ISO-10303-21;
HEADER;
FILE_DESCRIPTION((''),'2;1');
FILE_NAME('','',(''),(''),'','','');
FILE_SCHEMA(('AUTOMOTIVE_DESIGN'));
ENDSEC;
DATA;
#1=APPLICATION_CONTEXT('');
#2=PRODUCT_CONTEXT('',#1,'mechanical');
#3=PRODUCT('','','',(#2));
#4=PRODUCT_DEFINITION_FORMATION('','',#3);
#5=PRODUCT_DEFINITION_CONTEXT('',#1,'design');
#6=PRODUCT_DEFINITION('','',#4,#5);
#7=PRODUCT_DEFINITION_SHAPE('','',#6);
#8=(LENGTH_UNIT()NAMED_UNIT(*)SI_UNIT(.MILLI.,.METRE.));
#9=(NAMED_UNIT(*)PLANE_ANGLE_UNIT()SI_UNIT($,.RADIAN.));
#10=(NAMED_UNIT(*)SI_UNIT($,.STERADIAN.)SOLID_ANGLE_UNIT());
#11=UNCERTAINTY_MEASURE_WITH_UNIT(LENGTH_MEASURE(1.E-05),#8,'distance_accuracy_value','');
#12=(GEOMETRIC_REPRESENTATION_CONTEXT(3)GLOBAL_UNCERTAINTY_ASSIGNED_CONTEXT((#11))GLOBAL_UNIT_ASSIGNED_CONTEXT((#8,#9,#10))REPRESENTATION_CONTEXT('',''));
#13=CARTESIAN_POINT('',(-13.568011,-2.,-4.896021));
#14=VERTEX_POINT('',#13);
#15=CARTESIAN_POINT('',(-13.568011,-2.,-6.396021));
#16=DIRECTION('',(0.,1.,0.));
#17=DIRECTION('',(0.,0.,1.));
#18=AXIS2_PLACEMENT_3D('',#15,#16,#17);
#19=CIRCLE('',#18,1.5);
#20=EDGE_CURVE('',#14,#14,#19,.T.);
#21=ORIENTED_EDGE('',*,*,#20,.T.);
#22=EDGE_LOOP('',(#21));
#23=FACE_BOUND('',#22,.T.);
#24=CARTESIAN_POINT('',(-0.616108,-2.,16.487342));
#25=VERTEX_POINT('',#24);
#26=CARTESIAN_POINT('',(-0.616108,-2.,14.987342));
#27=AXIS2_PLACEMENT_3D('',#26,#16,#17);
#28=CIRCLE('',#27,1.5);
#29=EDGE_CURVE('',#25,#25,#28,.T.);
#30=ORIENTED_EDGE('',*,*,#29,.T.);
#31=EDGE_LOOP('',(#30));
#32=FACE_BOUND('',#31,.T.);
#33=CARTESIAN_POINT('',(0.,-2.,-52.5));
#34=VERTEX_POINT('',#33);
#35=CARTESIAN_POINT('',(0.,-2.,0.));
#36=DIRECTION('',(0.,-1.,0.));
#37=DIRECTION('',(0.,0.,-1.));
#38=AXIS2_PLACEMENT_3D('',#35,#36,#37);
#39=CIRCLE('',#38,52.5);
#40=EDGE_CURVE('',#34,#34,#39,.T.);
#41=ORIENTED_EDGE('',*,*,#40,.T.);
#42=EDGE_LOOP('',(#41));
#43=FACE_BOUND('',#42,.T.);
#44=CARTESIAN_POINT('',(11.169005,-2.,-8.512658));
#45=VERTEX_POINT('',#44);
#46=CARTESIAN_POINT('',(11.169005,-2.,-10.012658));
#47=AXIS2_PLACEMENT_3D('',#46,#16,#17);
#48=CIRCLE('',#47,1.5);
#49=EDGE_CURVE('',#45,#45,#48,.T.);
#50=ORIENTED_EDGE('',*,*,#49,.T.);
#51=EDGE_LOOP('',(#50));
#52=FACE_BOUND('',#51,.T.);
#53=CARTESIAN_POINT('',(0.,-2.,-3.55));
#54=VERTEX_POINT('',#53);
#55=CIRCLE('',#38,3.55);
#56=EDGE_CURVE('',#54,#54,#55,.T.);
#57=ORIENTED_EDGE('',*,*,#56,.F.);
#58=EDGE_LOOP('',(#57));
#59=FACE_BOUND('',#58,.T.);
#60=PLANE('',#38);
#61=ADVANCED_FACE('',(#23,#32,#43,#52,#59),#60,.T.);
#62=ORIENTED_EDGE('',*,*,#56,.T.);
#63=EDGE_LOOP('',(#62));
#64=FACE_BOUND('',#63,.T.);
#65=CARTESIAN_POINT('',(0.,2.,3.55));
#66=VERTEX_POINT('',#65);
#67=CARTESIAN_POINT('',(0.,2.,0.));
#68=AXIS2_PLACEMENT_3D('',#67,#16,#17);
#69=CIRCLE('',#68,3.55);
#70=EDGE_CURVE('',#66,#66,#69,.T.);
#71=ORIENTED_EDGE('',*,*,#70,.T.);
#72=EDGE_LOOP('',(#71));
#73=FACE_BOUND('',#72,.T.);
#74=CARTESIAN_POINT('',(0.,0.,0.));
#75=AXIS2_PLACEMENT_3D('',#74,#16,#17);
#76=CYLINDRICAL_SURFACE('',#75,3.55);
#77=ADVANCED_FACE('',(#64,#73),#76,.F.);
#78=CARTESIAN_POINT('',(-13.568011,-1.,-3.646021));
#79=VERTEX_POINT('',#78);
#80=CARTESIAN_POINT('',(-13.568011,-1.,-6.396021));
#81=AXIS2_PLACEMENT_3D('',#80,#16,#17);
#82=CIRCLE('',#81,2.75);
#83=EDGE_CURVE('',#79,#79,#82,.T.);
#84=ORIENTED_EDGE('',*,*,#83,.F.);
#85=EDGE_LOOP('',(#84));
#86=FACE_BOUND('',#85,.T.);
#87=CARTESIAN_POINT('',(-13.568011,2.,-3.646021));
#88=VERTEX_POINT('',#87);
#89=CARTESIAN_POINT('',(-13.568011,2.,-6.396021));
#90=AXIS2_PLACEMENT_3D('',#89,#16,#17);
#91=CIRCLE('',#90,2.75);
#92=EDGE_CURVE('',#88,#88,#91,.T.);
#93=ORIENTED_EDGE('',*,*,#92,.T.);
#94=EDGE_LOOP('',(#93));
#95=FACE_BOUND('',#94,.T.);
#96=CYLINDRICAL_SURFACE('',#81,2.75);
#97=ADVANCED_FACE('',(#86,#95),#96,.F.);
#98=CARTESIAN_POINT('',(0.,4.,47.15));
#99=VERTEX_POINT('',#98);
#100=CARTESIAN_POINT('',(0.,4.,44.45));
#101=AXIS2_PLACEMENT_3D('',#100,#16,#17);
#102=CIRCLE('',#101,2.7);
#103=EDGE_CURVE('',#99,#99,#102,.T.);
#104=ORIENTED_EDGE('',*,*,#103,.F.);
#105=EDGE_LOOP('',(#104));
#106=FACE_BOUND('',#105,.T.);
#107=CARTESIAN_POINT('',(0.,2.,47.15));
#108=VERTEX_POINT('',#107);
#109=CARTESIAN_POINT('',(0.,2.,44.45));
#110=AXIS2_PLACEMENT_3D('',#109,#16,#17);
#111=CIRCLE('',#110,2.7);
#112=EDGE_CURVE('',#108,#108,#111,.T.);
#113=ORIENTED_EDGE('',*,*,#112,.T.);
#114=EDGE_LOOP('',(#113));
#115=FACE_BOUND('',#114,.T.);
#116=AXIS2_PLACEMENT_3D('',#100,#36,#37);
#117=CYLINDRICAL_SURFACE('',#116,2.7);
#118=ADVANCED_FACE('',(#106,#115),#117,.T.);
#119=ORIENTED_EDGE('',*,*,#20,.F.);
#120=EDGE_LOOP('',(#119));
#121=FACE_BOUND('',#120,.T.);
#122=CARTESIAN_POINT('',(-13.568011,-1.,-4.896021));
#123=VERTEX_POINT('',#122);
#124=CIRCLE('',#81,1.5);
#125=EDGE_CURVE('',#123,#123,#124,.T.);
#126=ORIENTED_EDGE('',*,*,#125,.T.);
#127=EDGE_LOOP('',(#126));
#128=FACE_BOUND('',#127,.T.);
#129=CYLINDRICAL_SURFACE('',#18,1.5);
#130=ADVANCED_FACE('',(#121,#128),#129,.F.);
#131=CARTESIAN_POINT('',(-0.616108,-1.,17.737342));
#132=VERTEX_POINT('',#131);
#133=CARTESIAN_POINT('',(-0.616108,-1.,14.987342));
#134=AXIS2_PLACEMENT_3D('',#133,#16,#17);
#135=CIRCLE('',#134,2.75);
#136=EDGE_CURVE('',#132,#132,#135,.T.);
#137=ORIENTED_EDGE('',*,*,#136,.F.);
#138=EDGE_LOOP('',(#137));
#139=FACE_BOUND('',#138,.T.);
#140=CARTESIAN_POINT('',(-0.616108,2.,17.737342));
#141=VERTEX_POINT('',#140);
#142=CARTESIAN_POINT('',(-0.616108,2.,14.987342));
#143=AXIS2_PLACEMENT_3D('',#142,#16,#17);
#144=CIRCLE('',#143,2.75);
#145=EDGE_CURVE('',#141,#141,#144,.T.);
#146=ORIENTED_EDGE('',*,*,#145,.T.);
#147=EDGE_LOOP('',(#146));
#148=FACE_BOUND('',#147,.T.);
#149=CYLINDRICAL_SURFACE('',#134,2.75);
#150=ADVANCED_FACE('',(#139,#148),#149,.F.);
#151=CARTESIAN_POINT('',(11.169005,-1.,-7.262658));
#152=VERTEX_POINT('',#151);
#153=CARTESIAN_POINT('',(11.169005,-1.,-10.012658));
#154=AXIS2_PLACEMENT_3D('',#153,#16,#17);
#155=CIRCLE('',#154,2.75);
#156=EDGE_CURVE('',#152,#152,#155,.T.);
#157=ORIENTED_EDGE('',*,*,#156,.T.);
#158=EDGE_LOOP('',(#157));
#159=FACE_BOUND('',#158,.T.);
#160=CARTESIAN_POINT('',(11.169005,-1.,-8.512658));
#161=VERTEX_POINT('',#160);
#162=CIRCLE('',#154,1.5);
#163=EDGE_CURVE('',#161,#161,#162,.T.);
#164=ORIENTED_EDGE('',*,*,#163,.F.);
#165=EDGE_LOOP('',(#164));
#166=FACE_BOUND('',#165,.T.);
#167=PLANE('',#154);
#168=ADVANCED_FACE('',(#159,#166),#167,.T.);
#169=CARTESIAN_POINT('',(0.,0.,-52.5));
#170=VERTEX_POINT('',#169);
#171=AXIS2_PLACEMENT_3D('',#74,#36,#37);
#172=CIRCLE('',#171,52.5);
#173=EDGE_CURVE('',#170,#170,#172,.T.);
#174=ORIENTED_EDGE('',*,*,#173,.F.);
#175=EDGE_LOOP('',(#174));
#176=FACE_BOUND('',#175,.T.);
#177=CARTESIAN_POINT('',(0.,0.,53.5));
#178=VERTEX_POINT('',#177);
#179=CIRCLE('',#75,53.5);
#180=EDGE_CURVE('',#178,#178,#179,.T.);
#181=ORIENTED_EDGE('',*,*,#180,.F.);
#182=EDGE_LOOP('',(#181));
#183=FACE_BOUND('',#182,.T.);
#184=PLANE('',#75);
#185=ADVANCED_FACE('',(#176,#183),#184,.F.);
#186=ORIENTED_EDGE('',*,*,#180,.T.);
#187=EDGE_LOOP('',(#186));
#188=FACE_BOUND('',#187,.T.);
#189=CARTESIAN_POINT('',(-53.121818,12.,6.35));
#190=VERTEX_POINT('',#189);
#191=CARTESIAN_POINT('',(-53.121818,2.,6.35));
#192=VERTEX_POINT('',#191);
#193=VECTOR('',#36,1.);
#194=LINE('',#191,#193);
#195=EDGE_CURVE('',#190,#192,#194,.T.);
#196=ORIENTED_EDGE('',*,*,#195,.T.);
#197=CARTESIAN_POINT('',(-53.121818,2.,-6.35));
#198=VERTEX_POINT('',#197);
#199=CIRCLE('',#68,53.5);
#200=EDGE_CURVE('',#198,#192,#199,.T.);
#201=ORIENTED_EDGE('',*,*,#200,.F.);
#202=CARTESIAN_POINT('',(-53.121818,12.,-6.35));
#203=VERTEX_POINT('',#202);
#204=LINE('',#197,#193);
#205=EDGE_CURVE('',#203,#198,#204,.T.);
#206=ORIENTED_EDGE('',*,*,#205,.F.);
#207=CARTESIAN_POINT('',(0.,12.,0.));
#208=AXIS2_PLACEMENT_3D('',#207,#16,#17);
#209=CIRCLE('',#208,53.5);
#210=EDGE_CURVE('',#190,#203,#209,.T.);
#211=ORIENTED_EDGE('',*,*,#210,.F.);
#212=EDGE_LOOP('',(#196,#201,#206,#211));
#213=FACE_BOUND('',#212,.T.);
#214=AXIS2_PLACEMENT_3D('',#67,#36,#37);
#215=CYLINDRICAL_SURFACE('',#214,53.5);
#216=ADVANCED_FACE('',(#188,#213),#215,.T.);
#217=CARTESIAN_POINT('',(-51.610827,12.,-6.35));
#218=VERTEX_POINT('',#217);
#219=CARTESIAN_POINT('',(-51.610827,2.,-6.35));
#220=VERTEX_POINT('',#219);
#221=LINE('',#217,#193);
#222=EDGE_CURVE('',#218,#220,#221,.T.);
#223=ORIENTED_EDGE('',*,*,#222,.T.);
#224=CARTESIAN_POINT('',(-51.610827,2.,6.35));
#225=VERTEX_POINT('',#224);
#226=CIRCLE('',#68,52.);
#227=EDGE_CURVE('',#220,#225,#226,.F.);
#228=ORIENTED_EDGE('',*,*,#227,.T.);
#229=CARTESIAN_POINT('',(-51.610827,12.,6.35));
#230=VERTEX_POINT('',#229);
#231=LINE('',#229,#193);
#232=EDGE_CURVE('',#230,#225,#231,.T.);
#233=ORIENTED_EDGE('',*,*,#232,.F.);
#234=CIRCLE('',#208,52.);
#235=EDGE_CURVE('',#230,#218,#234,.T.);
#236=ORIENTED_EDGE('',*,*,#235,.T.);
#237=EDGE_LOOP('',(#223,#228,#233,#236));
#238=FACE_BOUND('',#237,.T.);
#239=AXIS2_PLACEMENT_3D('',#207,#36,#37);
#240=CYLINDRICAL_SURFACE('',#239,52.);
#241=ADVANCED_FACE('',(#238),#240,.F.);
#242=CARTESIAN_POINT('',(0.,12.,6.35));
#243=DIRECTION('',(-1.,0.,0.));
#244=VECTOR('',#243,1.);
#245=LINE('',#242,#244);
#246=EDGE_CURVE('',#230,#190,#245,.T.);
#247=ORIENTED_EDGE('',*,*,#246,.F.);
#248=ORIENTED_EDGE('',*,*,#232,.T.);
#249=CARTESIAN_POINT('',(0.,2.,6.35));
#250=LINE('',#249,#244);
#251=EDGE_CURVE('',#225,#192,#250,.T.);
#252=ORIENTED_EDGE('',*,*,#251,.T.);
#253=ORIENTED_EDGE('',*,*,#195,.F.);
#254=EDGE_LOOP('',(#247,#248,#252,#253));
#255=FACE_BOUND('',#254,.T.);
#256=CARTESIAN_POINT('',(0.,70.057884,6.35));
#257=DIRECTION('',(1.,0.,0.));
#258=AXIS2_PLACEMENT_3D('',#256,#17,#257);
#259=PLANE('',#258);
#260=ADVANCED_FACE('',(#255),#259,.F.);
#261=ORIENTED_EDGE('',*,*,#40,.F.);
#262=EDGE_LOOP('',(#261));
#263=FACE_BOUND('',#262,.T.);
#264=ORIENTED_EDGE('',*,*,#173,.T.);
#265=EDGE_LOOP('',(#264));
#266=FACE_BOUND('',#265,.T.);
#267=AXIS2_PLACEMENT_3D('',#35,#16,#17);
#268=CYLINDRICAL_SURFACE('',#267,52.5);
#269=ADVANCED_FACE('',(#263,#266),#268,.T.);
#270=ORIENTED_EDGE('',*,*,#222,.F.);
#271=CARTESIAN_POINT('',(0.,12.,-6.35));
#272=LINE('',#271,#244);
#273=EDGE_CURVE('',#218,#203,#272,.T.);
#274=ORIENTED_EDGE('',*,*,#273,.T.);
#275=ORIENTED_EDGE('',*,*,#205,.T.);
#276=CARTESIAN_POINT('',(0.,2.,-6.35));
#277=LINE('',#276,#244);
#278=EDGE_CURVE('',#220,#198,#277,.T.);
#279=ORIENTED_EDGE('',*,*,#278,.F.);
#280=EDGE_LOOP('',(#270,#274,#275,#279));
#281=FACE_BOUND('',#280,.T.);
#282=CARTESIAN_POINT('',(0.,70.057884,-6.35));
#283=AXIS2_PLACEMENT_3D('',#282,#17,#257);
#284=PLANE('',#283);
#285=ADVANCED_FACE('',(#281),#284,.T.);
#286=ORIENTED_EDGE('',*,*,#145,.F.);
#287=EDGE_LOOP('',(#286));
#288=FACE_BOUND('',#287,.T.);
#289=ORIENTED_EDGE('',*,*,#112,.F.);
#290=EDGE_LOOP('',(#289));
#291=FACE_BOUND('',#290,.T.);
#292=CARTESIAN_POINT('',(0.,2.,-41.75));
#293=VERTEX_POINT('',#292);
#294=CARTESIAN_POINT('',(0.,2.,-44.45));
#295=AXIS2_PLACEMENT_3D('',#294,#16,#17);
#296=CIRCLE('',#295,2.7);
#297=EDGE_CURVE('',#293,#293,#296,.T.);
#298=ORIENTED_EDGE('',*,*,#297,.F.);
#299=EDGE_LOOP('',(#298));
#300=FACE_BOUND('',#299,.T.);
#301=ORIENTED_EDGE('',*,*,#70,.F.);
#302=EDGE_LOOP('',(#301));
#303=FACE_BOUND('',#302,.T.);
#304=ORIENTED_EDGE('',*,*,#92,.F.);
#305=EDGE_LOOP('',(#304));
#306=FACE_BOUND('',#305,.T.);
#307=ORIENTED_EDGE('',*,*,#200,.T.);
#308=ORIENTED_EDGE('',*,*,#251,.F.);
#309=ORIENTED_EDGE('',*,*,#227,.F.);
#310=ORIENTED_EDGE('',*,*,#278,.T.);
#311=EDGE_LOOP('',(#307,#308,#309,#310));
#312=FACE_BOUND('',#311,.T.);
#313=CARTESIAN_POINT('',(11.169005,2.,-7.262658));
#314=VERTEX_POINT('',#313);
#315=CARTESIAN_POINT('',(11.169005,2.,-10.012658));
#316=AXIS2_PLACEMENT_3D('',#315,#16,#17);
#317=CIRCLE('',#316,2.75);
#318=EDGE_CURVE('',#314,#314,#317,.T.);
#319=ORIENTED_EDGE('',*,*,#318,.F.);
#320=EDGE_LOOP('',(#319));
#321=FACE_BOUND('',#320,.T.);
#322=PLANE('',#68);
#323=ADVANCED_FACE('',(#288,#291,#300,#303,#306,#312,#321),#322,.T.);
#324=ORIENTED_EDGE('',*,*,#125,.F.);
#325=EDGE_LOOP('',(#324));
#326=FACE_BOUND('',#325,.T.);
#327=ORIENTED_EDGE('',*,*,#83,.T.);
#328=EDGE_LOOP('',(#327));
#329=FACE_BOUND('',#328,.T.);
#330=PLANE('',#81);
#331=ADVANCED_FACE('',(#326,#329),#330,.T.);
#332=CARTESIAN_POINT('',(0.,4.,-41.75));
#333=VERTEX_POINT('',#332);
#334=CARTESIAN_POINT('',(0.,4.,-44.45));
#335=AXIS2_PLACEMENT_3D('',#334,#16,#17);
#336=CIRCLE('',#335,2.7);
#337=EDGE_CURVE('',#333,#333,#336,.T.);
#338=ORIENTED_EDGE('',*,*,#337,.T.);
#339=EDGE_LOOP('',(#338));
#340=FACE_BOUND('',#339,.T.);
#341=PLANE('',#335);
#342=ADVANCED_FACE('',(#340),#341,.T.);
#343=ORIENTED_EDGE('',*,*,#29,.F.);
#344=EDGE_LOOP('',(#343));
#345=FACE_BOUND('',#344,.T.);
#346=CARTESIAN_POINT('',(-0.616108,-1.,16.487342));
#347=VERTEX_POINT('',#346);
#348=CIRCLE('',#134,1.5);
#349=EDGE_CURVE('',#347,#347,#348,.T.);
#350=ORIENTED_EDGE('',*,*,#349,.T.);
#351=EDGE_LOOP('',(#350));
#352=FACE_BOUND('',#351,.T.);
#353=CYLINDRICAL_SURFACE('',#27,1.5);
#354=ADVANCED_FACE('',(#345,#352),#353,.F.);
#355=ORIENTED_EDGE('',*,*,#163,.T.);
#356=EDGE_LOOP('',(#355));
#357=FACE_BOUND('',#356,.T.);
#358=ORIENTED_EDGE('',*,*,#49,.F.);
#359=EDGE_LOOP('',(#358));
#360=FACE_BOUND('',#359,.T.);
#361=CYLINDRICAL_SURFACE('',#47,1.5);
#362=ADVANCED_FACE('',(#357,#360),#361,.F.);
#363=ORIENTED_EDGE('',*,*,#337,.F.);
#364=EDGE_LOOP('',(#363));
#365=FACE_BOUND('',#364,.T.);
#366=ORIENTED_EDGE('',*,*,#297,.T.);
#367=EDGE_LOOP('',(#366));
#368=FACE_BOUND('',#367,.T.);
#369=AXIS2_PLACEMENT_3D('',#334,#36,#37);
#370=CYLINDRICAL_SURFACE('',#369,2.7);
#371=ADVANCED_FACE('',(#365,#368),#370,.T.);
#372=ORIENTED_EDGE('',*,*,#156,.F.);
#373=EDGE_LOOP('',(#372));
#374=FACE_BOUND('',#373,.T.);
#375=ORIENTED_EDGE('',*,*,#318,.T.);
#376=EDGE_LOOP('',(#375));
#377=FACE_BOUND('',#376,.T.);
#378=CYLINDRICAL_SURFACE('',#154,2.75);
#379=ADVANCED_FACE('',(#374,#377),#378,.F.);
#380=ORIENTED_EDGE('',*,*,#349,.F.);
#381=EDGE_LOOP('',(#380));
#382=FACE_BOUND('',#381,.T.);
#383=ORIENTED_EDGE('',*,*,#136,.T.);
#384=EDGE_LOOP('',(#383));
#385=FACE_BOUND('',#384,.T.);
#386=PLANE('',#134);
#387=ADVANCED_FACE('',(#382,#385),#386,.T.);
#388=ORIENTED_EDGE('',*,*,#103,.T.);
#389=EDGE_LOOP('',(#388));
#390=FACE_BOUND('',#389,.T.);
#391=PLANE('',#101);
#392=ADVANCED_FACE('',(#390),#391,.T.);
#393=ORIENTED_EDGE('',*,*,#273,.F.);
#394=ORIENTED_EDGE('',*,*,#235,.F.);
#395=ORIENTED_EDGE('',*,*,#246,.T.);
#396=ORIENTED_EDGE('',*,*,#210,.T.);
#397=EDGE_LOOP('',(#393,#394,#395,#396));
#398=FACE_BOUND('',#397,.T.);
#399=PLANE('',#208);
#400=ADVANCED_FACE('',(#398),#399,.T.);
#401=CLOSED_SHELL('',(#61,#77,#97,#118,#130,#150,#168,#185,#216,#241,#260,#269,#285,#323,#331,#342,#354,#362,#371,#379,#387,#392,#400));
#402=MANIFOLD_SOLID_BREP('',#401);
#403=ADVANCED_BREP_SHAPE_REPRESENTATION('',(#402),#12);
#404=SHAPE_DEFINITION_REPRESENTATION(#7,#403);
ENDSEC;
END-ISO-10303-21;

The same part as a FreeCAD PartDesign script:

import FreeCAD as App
import Part
import Sketcher

doc = App.newDocument("Part")
body = doc.addObject("PartDesign::Body", "Body")

# Sketch on XZ plane
sketch1 = body.newObject("Sketcher::SketchObject", "Sketch")
sketch1.AttachmentSupport = (doc.getObject("XZ_Plane"), [""])
sketch1.MapMode = "FlatFace"
sketch1.addGeometry(Part.Circle(App.Vector(0, 0, 0), App.Vector(0, 0, 1), 54), False)
sketch1.addConstraint([
    Sketcher.Constraint("Coincident", 0, 3, -1, 1),
    Sketcher.Constraint("Diameter", 0, 107.0),
])
pad1 = body.newObject("PartDesign::Pad", "Pad")
pad1.Profile = sketch1
pad1.Length = 2
pad1.Reversed = True

# Sketch on XZ plane
sketch2 = body.newObject("Sketcher::SketchObject", "Sketch001")
sketch2.AttachmentSupport = (doc.getObject("XZ_Plane"), [""])
sketch2.MapMode = "FlatFace"
sketch2.AttachmentOffset = App.Placement(App.Vector(0, 0, -2), App.Rotation())
sketch2.addGeometry([
    Part.Circle(App.Vector(0, 44.5, 0), App.Vector(0, 0, 1), 2.7),
    Part.Circle(App.Vector(0, -44.5, 0), App.Vector(0, 0, 1), 2.7),
], False)
sketch2.addConstraint([
    Sketcher.Constraint("Equal", 0, 1),
    Sketcher.Constraint("Symmetric", 0, 3, 1, 3, -1, 1),
    Sketcher.Constraint("PointOnObject", 0, 3, -2),
    Sketcher.Constraint("Diameter", 0, 5.4),
    Sketcher.Constraint("DistanceY", 1, 3, 0, 3, 88.9),
])
pad2 = body.newObject("PartDesign::Pad", "Pad001")
pad2.Profile = sketch2
pad2.Length = 2
pad2.Reversed = True

# Sketch on XZ plane
sketch3 = body.newObject("Sketcher::SketchObject", "Sketch002")
sketch3.AttachmentSupport = (doc.getObject("XZ_Plane"), [""])
sketch3.MapMode = "FlatFace"
sketch3.AttachmentOffset = App.Placement(App.Vector(0, 0, -2), App.Rotation())
sketch3.addGeometry(Part.Circle(App.Vector(0, 0, 0), App.Vector(0, 0, 1), 3.5), False)
sketch3.addConstraint([
    Sketcher.Constraint("Coincident", 0, 3, -1, 1),
    Sketcher.Constraint("Diameter", 0, 7.1),
])
pocket1 = body.newObject("PartDesign::Pocket", "Pocket")
pocket1.Profile = sketch3
pocket1.Length = 2
pocket1.Reversed = True

# Sketch on XZ plane
sketch4 = body.newObject("Sketcher::SketchObject", "Sketch003")
sketch4.AttachmentSupport = (doc.getObject("XZ_Plane"), [""])
sketch4.MapMode = "FlatFace"
sketch4.AttachmentOffset = App.Placement(App.Vector(0, 0, -2), App.Rotation())
sketch4.addGeometry([
    Part.Circle(App.Vector(0, 0, 0), App.Vector(0, 0, 1), 54),
    Part.Circle(App.Vector(0, 0, 0), App.Vector(0, 0, 1), 52),
], False)
sketch4.addConstraint([
    Sketcher.Constraint("Coincident", 0, 3, -1, 1),
    Sketcher.Constraint("Coincident", 1, 3, -1, 1),
    Sketcher.Constraint("Diameter", 0, 107.0),
    Sketcher.Constraint("Diameter", 1, 104.0),
])
pad3 = body.newObject("PartDesign::Pad", "Pad002")
pad3.Profile = sketch4
pad3.Length = 10
pad3.Reversed = True

# Sketch on XZ plane
sketch5 = body.newObject("Sketcher::SketchObject", "Sketch004")
sketch5.AttachmentSupport = (doc.getObject("XZ_Plane"), [""])
sketch5.MapMode = "FlatFace"
sketch5.AttachmentOffset = App.Placement(App.Vector(0, 0, -2), App.Rotation())
sketch5.addGeometry([
    Part.LineSegment(App.Vector(-57, -6, 0), App.Vector(-57, 6, 0)),
    Part.LineSegment(App.Vector(-57, 6, 0), App.Vector(0, 6, 0)),
    Part.LineSegment(App.Vector(0, 6, 0), App.Vector(0, -6, 0)),
    Part.LineSegment(App.Vector(0, -6, 0), App.Vector(-57, -6, 0)),
], False)
sketch5.addConstraint([
    Sketcher.Constraint("Coincident", 0, 2, 1, 1),
    Sketcher.Constraint("Coincident", 1, 2, 2, 1),
    Sketcher.Constraint("Coincident", 2, 2, 3, 1),
    Sketcher.Constraint("Coincident", 3, 2, 0, 1),
    Sketcher.Constraint("Vertical", 0),
    Sketcher.Constraint("Horizontal", 1),
    Sketcher.Constraint("Vertical", 2),
    Sketcher.Constraint("Horizontal", 3),
    Sketcher.Constraint("Symmetric", 1, 2, 2, 2, -1, 1),
    Sketcher.Constraint("DistanceY", 0, 1, 0, 2, 12.7),
    Sketcher.Constraint("DistanceX", 1, 1, 1, 2, 56.651813),
])
pocket2 = body.newObject("PartDesign::Pocket", "Pocket001")
pocket2.Profile = sketch5
pocket2.Length = 10

# Sketch on XZ plane
sketch6 = body.newObject("Sketcher::SketchObject", "Sketch005")
sketch6.AttachmentSupport = (doc.getObject("XZ_Plane"), [""])
sketch6.MapMode = "FlatFace"
sketch6.addGeometry([
    Part.Circle(App.Vector(0, 0, 0), App.Vector(0, 0, 1), 52.5),
    Part.Circle(App.Vector(0, 0, 0), App.Vector(0, 0, 1), 3.5),
], False)
sketch6.addConstraint([
    Sketcher.Constraint("Coincident", 0, 3, -1, 1),
    Sketcher.Constraint("Coincident", 1, 3, -1, 1),
    Sketcher.Constraint("Diameter", 0, 105.0),
    Sketcher.Constraint("Diameter", 1, 7.1),
])
pad4 = body.newObject("PartDesign::Pad", "Pad003")
pad4.Profile = sketch6
pad4.Length = 2

# Sketch on XZ plane
sketch7 = body.newObject("Sketcher::SketchObject", "Sketch006")
sketch7.AttachmentSupport = (doc.getObject("XZ_Plane"), [""])
sketch7.MapMode = "FlatFace"
sketch7.AttachmentOffset = App.Placement(App.Vector(0, 0, -2), App.Rotation())
sketch7.addGeometry([
    Part.Circle(App.Vector(11.2, -10, 0), App.Vector(0, 0, 1), 2.8),
    Part.Circle(App.Vector(-0.6, 15, 0), App.Vector(0, 0, 1), 2.8),
    Part.Circle(App.Vector(-13.6, -6.4, 0), App.Vector(0, 0, 1), 2.8),
], False)
sketch7.addConstraint([
    Sketcher.Constraint("Equal", 0, 1),
    Sketcher.Constraint("Equal", 1, 2),
    Sketcher.Constraint("Diameter", 0, 5.5),
    Sketcher.Constraint("DistanceY", 0, 3, 1, 3, 25.0),
    Sketcher.Constraint("DistanceY", 0, 3, -1, 1, 10.012658),
    Sketcher.Constraint("DistanceX", 2, 3, -1, 1, 13.568011),
    Sketcher.Constraint("DistanceY", 2, 3, -1, 1, 6.396021),
    Sketcher.Constraint("DistanceX", -1, 1, 0, 3, 11.169005),
    Sketcher.Constraint("DistanceX", 1, 3, -1, 1, 0.616108),
])
pocket3 = body.newObject("PartDesign::Pocket", "Pocket002")
pocket3.Profile = sketch7
pocket3.Length = 3
pocket3.Reversed = True

# Sketch on XZ plane
sketch8 = body.newObject("Sketcher::SketchObject", "Sketch007")
sketch8.AttachmentSupport = (doc.getObject("XZ_Plane"), [""])
sketch8.MapMode = "FlatFace"
sketch8.AttachmentOffset = App.Placement(App.Vector(0, 0, 1), App.Rotation())
sketch8.addGeometry([
    Part.Circle(App.Vector(11.2, -10, 0), App.Vector(0, 0, 1), 1.5),
    Part.Circle(App.Vector(-0.6, 15, 0), App.Vector(0, 0, 1), 1.5),
    Part.Circle(App.Vector(-13.6, -6.4, 0), App.Vector(0, 0, 1), 1.5),
], False)
sketch8.addConstraint([
    Sketcher.Constraint("Equal", 0, 1),
    Sketcher.Constraint("Equal", 1, 2),
    Sketcher.Constraint("Diameter", 0, 3.0),
    Sketcher.Constraint("DistanceY", 0, 3, 1, 3, 25.0),
    Sketcher.Constraint("DistanceY", 0, 3, -1, 1, 10.012658),
    Sketcher.Constraint("DistanceX", 2, 3, -1, 1, 13.568011),
    Sketcher.Constraint("DistanceY", 2, 3, -1, 1, 6.396021),
    Sketcher.Constraint("DistanceX", -1, 1, 0, 3, 11.169005),
    Sketcher.Constraint("DistanceX", 1, 3, -1, 1, 0.616108),
])
pocket4 = body.newObject("PartDesign::Pocket", "Pocket003")
pocket4.Profile = sketch8
pocket4.Type = "ThroughAll"
pocket4.Reversed = True

doc.recompute()
